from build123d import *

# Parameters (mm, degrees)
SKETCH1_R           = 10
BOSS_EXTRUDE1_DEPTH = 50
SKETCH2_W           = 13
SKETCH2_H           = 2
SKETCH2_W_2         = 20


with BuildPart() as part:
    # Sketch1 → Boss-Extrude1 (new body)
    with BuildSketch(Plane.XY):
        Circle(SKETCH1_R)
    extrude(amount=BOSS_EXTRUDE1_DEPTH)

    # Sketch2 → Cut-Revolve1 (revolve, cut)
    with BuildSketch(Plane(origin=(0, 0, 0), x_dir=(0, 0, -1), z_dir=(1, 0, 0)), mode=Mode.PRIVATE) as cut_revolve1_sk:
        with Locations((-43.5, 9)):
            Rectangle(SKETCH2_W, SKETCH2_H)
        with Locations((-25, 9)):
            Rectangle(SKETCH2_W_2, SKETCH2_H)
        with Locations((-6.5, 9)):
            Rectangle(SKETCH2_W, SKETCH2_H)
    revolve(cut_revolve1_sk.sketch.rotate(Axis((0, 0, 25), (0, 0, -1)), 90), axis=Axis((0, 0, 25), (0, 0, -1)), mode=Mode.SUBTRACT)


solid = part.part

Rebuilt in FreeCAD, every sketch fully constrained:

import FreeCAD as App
import Part
import Sketcher
from FreeCAD import Vector


def add_polygon(sketch, points):
    """Adds a closed chain of lines whose ends are joined by coincident constraints."""
    first, n = sketch.GeometryCount, len(points)
    for a, b in zip(points, points[1:] + points[:1]):
        sketch.addGeometry(Part.LineSegment(App.Vector(*a, 0), App.Vector(*b, 0)), False)
    for i in range(n):
        sketch.addConstraint(Sketcher.Constraint("Coincident", first + i, 2, first + (i + 1) % n, 1))

doc = App.newDocument("Part")
body = doc.addObject("PartDesign::Body", "Body")

# Sketch on XY plane
sketch1 = body.newObject("Sketcher::SketchObject", "Sketch")
sketch1.AttachmentSupport = (doc.getObject("XY_Plane"), [""])
sketch1.MapMode = "FlatFace"
sketch1.addGeometry(Part.Circle(Vector(0, 0, 0), Vector(0, 0, 1), 10), False)
sketch1.addConstraint([
    Sketcher.Constraint("Coincident", 0, 3, -1, 1),
    Sketcher.Constraint("Diameter", 0, 20.0),
])
pad1 = body.newObject("PartDesign::Pad", "Pad")
pad1.Profile = sketch1
pad1.Length = 50

# Sketch on YZ plane
sketch2 = body.newObject("Sketcher::SketchObject", "Sketch001")
sketch2.AttachmentSupport = (doc.getObject("YZ_Plane"), [""])
sketch2.MapMode = "FlatFace"
add_polygon(sketch2, [(10, 50), (8, 50), (8, 37), (10, 37)])  # lines 0-3
add_polygon(sketch2, [(10, 35), (8, 35), (8, 15), (10, 15)])  # lines 4-7
add_polygon(sketch2, [(10, 13), (8, 13), (8, 0), (10, 0)])  # lines 8-11
sketch2.addConstraint([
    Sketcher.Constraint("Horizontal", 0),
    Sketcher.Constraint("Vertical", 1),
    Sketcher.Constraint("Horizontal", 2),
    Sketcher.Constraint("Vertical", 3),
    Sketcher.Constraint("Horizontal", 4),
    Sketcher.Constraint("Vertical", 5),
    Sketcher.Constraint("Horizontal", 6),
    Sketcher.Constraint("Vertical", 7),
    Sketcher.Constraint("Horizontal", 8),
    Sketcher.Constraint("Vertical", 9),
    Sketcher.Constraint("Horizontal", 10),
    Sketcher.Constraint("Vertical", 11),
    Sketcher.Constraint("PointOnObject", 9, 2, -1),
    Sketcher.Constraint("Vertical", 1, 2, 4, 2),
    Sketcher.Constraint("Vertical", 3, 2, 6, 2),
    Sketcher.Constraint("Vertical", 5, 2, 8, 2),
    Sketcher.Constraint("Vertical", 7, 2, 10, 2),
    Sketcher.Constraint("Equal", 3, 9),
    Sketcher.Constraint("DistanceX", 0, 2, 0, 1, 2.0),
    Sketcher.Constraint("DistanceY", 1, 2, 1, 1, 13.0),
    Sketcher.Constraint("DistanceY", 5, 2, 5, 1, 20.0),
    Sketcher.Constraint("DistanceX", -1, 1, 0, 2, 8.0),
    Sketcher.Constraint("DistanceY", -1, 1, 0, 2, 50.0),
    Sketcher.Constraint("DistanceY", -1, 1, 4, 2, 35.0),
])
groove = body.newObject("PartDesign::Groove", "Groove")
groove.Profile = sketch2
groove.ReferenceAxis = (sketch2, ["V_Axis"])
groove.Angle = 360

doc.recompute()
